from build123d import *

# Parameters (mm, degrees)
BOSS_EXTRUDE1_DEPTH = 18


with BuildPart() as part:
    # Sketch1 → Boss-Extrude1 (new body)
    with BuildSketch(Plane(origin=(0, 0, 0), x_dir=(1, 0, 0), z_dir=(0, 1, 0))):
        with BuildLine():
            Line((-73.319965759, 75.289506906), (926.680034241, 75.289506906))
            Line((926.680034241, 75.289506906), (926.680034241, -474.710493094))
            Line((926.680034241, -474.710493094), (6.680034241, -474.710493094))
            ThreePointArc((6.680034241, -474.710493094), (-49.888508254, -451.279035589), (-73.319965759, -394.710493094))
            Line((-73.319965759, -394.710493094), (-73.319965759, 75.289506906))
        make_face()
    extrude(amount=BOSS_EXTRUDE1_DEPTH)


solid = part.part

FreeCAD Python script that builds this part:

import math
import FreeCAD as App
import Part
import Sketcher
Q = App.Units.Quantity

doc = App.newDocument("Part")
params = doc.addObject("Spreadsheet::Sheet", "Params")
for row, (alias, value) in enumerate([
    ("sketch1_radius", "80 mm"),
    ("sketch1_width", "1000 mm"),
    ("sketch1_height", "470 mm"),
    ("pad1_length", "18 mm"),
], start=1):
    params.set(f"A{row}", alias)
    params.set(f"B{row}", "=" + value)
    params.setAlias(f"B{row}", alias)

body = doc.addObject("PartDesign::Body", "Body")

sketch1 = body.newObject("Sketcher::SketchObject", "Sketch")
sketch1.AttachmentSupport = (doc.getObject("XZ_Plane"), [""])
sketch1.MapMode = "FlatFace"
sketch1.addGeometry([
    Part.LineSegment(App.Vector(927, -75, 0), App.Vector(-73, -75, 0)),
    Part.LineSegment(App.Vector(-73, -75, 0), App.Vector(-73, 395, 0)),
    Part.ArcOfCircle(Part.Circle(App.Vector(7, 395, 0), App.Vector(0, 0, 1), 80), math.radians(90), math.radians(180)),
    Part.LineSegment(App.Vector(7, 475, 0), App.Vector(927, 475, 0)),
    Part.LineSegment(App.Vector(927, 475, 0), App.Vector(927, -75, 0)),
], False)
sketch1.addConstraint([
    Sketcher.Constraint("Coincident", 0, 2, 1, 1),
    Sketcher.Constraint("Tangent", 1, 2, 2, 2),
    Sketcher.Constraint("Tangent", 2, 1, 3, 1),
    Sketcher.Constraint("Coincident", 3, 2, 4, 1),
    Sketcher.Constraint("Coincident", 4, 2, 0, 1),
    Sketcher.Constraint("Horizontal", 0),
    Sketcher.Constraint("Vertical", 1),
    Sketcher.Constraint("Horizontal", 3),
    Sketcher.Constraint("Vertical", 4),
    Sketcher.Constraint("Radius", 2, Q("80 mm")),
    Sketcher.Constraint("DistanceX", 0, 2, 0, 1, Q("1000 mm")),
    Sketcher.Constraint("DistanceY", 1, 1, 1, 2, Q("470 mm")),
    Sketcher.Constraint("DistanceX", -1, 1, 2, 3, Q("6.680034 mm")),
    Sketcher.Constraint("DistanceY", -1, 1, 2, 3, Q("394.710493 mm")),
])
sketch1.setExpression("Constraints[9]", "Params.sketch1_radius")
sketch1.setExpression("Constraints[10]", "Params.sketch1_width")
sketch1.setExpression("Constraints[11]", "Params.sketch1_height")
pad1 = body.newObject("PartDesign::Pad", "Pad")
pad1.Profile = sketch1
pad1.setExpression("Length", "Params.pad1_length")
pad1.Reversed = True

doc.recompute()
